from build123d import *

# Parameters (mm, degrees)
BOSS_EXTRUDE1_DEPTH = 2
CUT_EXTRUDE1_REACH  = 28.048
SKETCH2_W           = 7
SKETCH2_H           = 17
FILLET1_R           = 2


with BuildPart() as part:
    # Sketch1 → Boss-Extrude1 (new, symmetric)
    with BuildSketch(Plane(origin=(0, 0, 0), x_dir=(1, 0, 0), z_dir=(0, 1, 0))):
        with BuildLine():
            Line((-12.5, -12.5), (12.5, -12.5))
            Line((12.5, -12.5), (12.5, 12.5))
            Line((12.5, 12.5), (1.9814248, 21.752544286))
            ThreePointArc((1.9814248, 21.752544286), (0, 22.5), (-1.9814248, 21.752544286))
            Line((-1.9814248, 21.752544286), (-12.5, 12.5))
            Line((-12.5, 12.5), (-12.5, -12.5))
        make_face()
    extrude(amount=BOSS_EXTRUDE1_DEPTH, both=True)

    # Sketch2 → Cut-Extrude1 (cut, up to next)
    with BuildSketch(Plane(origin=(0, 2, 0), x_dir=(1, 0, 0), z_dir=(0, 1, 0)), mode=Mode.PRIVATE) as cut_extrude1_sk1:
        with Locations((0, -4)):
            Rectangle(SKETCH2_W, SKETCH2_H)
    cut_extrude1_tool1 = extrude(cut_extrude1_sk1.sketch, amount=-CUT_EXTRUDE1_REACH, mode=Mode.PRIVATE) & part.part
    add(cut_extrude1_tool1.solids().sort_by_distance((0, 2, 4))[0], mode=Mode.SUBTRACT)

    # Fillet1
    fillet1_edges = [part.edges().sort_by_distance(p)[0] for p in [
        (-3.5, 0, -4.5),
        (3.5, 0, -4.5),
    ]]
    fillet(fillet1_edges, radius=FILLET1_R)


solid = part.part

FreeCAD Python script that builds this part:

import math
import FreeCAD as App
import Part
import Sketcher


def edges_at(feature, points):
    """Names of the edges that pass closest to the given points."""
    edges = feature.Shape.Edges
    near = lambda p: min(range(len(edges)), key=lambda i: edges[i].distToShape(Part.Vertex(*p))[0])
    return sorted({f"Edge{near(p) + 1}" for p in points})


def add_polygon(sketch, points):
    """Adds a closed chain of lines whose ends are joined by coincident constraints."""
    first, n = sketch.GeometryCount, len(points)
    for a, b in zip(points, points[1:] + points[:1]):
        sketch.addGeometry(Part.LineSegment(App.Vector(*a, 0), App.Vector(*b, 0)), False)
    for i in range(n):
        sketch.addConstraint(Sketcher.Constraint("Coincident", first + i, 2, first + (i + 1) % n, 1))

doc = App.newDocument("Part")
body = doc.addObject("PartDesign::Body", "Body")

# Sketch on XZ plane
sketch1 = doc.addObject("Sketcher::SketchObject", "Sketch")
body.addObject(sketch1)
sketch1.AttachmentSupport = (doc.XZ_Plane, [""])
sketch1.MapMode = "FlatFace"
sketch1.addGeometry(Part.LineSegment(App.Vector(-12.5, 12.5, 0), App.Vector(12.5, 12.5, 0)), False)
sketch1.addGeometry(Part.LineSegment(App.Vector(12.5, 12.5, 0), App.Vector(12.5, -12.5, 0)), False)
sketch1.addGeometry(Part.LineSegment(App.Vector(12.5, -12.5, 0), App.Vector(2, -21.8, 0)), False)
sketch1.addGeometry(Part.ArcOfCircle(Part.Circle(App.Vector(0, -19.5, 0), App.Vector(0, 0, 1), 3), math.radians(-131), math.radians(-49)), False)
sketch1.addGeometry(Part.LineSegment(App.Vector(-2, -21.8, 0), App.Vector(-12.5, -12.5, 0)), False)
sketch1.addGeometry(Part.LineSegment(App.Vector(-12.5, -12.5, 0), App.Vector(-12.5, 12.5, 0)), False)
sketch1.addConstraint(Sketcher.Constraint("Coincident", 0, 2, 1, 1))
sketch1.addConstraint(Sketcher.Constraint("Coincident", 1, 2, 2, 1))
sketch1.addConstraint(Sketcher.Constraint("Tangent", 2, 2, 3, 2))
sketch1.addConstraint(Sketcher.Constraint("Tangent", 3, 1, 4, 1))
sketch1.addConstraint(Sketcher.Constraint("Coincident", 4, 2, 5, 1))
sketch1.addConstraint(Sketcher.Constraint("Coincident", 5, 2, 0, 1))
sketch1.addConstraint(Sketcher.Constraint("Horizontal", 0))
sketch1.addConstraint(Sketcher.Constraint("Vertical", 1))
sketch1.addConstraint(Sketcher.Constraint("Vertical", 5))
sketch1.addConstraint(Sketcher.Constraint("Symmetric", 0, 2, 4, 2, -1, 1))
sketch1.addConstraint(Sketcher.Constraint("Symmetric", 2, 2, 3, 1, -2))
sketch1.addConstraint(Sketcher.Constraint("Equal", 0, 1))
sketch1.addConstraint(Sketcher.Constraint("Radius", 3, 3.0))
sketch1.addConstraint(Sketcher.Constraint("DistanceX", 0, 1, 0, 2, 25.0))
sketch1.addConstraint(Sketcher.Constraint("DistanceY", 3, 3, 0, 2, 32.0))
pad1 = doc.addObject("PartDesign::Pad", "Pad")
body.addObject(pad1)
pad1.Profile = sketch1
pad1.Length = 4
pad1.Midplane = True

# Sketch on XZ plane
sketch2 = doc.addObject("Sketcher::SketchObject", "Sketch001")
body.addObject(sketch2)
sketch2.AttachmentSupport = (doc.XZ_Plane, [""])
sketch2.MapMode = "FlatFace"
sketch2.AttachmentOffset = App.Placement(App.Vector(0, 0, -2), App.Rotation())
add_polygon(sketch2, [(-4, -4), (-4, 12), (4, 12), (4, -4)])  # lines 0-3
sketch2.addConstraint(Sketcher.Constraint("Vertical", 0))
sketch2.addConstraint(Sketcher.Constraint("Horizontal", 1))
sketch2.addConstraint(Sketcher.Constraint("Vertical", 2))
sketch2.addConstraint(Sketcher.Constraint("Horizontal", 3))
sketch2.addConstraint(Sketcher.Constraint("DistanceX", 1, 1, 1, 2, 7.0))
sketch2.addConstraint(Sketcher.Constraint("DistanceY", 0, 1, 0, 2, 17.0))
sketch2.addConstraint(Sketcher.Constraint("DistanceX", 0, 2, -1, 1, 3.5))
sketch2.addConstraint(Sketcher.Constraint("DistanceY", -1, 1, 0, 2, 12.5))
pocket1 = doc.addObject("PartDesign::Pocket", "Pocket")
body.addObject(pocket1)
pocket1.Profile = sketch2
pocket1.Type = "UpToFirst"
pocket1.Reversed = True
doc.recompute()

fillet = doc.addObject("PartDesign::Fillet", "Fillet")
body.addObject(fillet)
fillet.Base = (pocket1, edges_at(pocket1, [(-3.5, 0, -4.5), (3.5, 0, -4.5)]))
fillet.Radius = 2

doc.recompute()
